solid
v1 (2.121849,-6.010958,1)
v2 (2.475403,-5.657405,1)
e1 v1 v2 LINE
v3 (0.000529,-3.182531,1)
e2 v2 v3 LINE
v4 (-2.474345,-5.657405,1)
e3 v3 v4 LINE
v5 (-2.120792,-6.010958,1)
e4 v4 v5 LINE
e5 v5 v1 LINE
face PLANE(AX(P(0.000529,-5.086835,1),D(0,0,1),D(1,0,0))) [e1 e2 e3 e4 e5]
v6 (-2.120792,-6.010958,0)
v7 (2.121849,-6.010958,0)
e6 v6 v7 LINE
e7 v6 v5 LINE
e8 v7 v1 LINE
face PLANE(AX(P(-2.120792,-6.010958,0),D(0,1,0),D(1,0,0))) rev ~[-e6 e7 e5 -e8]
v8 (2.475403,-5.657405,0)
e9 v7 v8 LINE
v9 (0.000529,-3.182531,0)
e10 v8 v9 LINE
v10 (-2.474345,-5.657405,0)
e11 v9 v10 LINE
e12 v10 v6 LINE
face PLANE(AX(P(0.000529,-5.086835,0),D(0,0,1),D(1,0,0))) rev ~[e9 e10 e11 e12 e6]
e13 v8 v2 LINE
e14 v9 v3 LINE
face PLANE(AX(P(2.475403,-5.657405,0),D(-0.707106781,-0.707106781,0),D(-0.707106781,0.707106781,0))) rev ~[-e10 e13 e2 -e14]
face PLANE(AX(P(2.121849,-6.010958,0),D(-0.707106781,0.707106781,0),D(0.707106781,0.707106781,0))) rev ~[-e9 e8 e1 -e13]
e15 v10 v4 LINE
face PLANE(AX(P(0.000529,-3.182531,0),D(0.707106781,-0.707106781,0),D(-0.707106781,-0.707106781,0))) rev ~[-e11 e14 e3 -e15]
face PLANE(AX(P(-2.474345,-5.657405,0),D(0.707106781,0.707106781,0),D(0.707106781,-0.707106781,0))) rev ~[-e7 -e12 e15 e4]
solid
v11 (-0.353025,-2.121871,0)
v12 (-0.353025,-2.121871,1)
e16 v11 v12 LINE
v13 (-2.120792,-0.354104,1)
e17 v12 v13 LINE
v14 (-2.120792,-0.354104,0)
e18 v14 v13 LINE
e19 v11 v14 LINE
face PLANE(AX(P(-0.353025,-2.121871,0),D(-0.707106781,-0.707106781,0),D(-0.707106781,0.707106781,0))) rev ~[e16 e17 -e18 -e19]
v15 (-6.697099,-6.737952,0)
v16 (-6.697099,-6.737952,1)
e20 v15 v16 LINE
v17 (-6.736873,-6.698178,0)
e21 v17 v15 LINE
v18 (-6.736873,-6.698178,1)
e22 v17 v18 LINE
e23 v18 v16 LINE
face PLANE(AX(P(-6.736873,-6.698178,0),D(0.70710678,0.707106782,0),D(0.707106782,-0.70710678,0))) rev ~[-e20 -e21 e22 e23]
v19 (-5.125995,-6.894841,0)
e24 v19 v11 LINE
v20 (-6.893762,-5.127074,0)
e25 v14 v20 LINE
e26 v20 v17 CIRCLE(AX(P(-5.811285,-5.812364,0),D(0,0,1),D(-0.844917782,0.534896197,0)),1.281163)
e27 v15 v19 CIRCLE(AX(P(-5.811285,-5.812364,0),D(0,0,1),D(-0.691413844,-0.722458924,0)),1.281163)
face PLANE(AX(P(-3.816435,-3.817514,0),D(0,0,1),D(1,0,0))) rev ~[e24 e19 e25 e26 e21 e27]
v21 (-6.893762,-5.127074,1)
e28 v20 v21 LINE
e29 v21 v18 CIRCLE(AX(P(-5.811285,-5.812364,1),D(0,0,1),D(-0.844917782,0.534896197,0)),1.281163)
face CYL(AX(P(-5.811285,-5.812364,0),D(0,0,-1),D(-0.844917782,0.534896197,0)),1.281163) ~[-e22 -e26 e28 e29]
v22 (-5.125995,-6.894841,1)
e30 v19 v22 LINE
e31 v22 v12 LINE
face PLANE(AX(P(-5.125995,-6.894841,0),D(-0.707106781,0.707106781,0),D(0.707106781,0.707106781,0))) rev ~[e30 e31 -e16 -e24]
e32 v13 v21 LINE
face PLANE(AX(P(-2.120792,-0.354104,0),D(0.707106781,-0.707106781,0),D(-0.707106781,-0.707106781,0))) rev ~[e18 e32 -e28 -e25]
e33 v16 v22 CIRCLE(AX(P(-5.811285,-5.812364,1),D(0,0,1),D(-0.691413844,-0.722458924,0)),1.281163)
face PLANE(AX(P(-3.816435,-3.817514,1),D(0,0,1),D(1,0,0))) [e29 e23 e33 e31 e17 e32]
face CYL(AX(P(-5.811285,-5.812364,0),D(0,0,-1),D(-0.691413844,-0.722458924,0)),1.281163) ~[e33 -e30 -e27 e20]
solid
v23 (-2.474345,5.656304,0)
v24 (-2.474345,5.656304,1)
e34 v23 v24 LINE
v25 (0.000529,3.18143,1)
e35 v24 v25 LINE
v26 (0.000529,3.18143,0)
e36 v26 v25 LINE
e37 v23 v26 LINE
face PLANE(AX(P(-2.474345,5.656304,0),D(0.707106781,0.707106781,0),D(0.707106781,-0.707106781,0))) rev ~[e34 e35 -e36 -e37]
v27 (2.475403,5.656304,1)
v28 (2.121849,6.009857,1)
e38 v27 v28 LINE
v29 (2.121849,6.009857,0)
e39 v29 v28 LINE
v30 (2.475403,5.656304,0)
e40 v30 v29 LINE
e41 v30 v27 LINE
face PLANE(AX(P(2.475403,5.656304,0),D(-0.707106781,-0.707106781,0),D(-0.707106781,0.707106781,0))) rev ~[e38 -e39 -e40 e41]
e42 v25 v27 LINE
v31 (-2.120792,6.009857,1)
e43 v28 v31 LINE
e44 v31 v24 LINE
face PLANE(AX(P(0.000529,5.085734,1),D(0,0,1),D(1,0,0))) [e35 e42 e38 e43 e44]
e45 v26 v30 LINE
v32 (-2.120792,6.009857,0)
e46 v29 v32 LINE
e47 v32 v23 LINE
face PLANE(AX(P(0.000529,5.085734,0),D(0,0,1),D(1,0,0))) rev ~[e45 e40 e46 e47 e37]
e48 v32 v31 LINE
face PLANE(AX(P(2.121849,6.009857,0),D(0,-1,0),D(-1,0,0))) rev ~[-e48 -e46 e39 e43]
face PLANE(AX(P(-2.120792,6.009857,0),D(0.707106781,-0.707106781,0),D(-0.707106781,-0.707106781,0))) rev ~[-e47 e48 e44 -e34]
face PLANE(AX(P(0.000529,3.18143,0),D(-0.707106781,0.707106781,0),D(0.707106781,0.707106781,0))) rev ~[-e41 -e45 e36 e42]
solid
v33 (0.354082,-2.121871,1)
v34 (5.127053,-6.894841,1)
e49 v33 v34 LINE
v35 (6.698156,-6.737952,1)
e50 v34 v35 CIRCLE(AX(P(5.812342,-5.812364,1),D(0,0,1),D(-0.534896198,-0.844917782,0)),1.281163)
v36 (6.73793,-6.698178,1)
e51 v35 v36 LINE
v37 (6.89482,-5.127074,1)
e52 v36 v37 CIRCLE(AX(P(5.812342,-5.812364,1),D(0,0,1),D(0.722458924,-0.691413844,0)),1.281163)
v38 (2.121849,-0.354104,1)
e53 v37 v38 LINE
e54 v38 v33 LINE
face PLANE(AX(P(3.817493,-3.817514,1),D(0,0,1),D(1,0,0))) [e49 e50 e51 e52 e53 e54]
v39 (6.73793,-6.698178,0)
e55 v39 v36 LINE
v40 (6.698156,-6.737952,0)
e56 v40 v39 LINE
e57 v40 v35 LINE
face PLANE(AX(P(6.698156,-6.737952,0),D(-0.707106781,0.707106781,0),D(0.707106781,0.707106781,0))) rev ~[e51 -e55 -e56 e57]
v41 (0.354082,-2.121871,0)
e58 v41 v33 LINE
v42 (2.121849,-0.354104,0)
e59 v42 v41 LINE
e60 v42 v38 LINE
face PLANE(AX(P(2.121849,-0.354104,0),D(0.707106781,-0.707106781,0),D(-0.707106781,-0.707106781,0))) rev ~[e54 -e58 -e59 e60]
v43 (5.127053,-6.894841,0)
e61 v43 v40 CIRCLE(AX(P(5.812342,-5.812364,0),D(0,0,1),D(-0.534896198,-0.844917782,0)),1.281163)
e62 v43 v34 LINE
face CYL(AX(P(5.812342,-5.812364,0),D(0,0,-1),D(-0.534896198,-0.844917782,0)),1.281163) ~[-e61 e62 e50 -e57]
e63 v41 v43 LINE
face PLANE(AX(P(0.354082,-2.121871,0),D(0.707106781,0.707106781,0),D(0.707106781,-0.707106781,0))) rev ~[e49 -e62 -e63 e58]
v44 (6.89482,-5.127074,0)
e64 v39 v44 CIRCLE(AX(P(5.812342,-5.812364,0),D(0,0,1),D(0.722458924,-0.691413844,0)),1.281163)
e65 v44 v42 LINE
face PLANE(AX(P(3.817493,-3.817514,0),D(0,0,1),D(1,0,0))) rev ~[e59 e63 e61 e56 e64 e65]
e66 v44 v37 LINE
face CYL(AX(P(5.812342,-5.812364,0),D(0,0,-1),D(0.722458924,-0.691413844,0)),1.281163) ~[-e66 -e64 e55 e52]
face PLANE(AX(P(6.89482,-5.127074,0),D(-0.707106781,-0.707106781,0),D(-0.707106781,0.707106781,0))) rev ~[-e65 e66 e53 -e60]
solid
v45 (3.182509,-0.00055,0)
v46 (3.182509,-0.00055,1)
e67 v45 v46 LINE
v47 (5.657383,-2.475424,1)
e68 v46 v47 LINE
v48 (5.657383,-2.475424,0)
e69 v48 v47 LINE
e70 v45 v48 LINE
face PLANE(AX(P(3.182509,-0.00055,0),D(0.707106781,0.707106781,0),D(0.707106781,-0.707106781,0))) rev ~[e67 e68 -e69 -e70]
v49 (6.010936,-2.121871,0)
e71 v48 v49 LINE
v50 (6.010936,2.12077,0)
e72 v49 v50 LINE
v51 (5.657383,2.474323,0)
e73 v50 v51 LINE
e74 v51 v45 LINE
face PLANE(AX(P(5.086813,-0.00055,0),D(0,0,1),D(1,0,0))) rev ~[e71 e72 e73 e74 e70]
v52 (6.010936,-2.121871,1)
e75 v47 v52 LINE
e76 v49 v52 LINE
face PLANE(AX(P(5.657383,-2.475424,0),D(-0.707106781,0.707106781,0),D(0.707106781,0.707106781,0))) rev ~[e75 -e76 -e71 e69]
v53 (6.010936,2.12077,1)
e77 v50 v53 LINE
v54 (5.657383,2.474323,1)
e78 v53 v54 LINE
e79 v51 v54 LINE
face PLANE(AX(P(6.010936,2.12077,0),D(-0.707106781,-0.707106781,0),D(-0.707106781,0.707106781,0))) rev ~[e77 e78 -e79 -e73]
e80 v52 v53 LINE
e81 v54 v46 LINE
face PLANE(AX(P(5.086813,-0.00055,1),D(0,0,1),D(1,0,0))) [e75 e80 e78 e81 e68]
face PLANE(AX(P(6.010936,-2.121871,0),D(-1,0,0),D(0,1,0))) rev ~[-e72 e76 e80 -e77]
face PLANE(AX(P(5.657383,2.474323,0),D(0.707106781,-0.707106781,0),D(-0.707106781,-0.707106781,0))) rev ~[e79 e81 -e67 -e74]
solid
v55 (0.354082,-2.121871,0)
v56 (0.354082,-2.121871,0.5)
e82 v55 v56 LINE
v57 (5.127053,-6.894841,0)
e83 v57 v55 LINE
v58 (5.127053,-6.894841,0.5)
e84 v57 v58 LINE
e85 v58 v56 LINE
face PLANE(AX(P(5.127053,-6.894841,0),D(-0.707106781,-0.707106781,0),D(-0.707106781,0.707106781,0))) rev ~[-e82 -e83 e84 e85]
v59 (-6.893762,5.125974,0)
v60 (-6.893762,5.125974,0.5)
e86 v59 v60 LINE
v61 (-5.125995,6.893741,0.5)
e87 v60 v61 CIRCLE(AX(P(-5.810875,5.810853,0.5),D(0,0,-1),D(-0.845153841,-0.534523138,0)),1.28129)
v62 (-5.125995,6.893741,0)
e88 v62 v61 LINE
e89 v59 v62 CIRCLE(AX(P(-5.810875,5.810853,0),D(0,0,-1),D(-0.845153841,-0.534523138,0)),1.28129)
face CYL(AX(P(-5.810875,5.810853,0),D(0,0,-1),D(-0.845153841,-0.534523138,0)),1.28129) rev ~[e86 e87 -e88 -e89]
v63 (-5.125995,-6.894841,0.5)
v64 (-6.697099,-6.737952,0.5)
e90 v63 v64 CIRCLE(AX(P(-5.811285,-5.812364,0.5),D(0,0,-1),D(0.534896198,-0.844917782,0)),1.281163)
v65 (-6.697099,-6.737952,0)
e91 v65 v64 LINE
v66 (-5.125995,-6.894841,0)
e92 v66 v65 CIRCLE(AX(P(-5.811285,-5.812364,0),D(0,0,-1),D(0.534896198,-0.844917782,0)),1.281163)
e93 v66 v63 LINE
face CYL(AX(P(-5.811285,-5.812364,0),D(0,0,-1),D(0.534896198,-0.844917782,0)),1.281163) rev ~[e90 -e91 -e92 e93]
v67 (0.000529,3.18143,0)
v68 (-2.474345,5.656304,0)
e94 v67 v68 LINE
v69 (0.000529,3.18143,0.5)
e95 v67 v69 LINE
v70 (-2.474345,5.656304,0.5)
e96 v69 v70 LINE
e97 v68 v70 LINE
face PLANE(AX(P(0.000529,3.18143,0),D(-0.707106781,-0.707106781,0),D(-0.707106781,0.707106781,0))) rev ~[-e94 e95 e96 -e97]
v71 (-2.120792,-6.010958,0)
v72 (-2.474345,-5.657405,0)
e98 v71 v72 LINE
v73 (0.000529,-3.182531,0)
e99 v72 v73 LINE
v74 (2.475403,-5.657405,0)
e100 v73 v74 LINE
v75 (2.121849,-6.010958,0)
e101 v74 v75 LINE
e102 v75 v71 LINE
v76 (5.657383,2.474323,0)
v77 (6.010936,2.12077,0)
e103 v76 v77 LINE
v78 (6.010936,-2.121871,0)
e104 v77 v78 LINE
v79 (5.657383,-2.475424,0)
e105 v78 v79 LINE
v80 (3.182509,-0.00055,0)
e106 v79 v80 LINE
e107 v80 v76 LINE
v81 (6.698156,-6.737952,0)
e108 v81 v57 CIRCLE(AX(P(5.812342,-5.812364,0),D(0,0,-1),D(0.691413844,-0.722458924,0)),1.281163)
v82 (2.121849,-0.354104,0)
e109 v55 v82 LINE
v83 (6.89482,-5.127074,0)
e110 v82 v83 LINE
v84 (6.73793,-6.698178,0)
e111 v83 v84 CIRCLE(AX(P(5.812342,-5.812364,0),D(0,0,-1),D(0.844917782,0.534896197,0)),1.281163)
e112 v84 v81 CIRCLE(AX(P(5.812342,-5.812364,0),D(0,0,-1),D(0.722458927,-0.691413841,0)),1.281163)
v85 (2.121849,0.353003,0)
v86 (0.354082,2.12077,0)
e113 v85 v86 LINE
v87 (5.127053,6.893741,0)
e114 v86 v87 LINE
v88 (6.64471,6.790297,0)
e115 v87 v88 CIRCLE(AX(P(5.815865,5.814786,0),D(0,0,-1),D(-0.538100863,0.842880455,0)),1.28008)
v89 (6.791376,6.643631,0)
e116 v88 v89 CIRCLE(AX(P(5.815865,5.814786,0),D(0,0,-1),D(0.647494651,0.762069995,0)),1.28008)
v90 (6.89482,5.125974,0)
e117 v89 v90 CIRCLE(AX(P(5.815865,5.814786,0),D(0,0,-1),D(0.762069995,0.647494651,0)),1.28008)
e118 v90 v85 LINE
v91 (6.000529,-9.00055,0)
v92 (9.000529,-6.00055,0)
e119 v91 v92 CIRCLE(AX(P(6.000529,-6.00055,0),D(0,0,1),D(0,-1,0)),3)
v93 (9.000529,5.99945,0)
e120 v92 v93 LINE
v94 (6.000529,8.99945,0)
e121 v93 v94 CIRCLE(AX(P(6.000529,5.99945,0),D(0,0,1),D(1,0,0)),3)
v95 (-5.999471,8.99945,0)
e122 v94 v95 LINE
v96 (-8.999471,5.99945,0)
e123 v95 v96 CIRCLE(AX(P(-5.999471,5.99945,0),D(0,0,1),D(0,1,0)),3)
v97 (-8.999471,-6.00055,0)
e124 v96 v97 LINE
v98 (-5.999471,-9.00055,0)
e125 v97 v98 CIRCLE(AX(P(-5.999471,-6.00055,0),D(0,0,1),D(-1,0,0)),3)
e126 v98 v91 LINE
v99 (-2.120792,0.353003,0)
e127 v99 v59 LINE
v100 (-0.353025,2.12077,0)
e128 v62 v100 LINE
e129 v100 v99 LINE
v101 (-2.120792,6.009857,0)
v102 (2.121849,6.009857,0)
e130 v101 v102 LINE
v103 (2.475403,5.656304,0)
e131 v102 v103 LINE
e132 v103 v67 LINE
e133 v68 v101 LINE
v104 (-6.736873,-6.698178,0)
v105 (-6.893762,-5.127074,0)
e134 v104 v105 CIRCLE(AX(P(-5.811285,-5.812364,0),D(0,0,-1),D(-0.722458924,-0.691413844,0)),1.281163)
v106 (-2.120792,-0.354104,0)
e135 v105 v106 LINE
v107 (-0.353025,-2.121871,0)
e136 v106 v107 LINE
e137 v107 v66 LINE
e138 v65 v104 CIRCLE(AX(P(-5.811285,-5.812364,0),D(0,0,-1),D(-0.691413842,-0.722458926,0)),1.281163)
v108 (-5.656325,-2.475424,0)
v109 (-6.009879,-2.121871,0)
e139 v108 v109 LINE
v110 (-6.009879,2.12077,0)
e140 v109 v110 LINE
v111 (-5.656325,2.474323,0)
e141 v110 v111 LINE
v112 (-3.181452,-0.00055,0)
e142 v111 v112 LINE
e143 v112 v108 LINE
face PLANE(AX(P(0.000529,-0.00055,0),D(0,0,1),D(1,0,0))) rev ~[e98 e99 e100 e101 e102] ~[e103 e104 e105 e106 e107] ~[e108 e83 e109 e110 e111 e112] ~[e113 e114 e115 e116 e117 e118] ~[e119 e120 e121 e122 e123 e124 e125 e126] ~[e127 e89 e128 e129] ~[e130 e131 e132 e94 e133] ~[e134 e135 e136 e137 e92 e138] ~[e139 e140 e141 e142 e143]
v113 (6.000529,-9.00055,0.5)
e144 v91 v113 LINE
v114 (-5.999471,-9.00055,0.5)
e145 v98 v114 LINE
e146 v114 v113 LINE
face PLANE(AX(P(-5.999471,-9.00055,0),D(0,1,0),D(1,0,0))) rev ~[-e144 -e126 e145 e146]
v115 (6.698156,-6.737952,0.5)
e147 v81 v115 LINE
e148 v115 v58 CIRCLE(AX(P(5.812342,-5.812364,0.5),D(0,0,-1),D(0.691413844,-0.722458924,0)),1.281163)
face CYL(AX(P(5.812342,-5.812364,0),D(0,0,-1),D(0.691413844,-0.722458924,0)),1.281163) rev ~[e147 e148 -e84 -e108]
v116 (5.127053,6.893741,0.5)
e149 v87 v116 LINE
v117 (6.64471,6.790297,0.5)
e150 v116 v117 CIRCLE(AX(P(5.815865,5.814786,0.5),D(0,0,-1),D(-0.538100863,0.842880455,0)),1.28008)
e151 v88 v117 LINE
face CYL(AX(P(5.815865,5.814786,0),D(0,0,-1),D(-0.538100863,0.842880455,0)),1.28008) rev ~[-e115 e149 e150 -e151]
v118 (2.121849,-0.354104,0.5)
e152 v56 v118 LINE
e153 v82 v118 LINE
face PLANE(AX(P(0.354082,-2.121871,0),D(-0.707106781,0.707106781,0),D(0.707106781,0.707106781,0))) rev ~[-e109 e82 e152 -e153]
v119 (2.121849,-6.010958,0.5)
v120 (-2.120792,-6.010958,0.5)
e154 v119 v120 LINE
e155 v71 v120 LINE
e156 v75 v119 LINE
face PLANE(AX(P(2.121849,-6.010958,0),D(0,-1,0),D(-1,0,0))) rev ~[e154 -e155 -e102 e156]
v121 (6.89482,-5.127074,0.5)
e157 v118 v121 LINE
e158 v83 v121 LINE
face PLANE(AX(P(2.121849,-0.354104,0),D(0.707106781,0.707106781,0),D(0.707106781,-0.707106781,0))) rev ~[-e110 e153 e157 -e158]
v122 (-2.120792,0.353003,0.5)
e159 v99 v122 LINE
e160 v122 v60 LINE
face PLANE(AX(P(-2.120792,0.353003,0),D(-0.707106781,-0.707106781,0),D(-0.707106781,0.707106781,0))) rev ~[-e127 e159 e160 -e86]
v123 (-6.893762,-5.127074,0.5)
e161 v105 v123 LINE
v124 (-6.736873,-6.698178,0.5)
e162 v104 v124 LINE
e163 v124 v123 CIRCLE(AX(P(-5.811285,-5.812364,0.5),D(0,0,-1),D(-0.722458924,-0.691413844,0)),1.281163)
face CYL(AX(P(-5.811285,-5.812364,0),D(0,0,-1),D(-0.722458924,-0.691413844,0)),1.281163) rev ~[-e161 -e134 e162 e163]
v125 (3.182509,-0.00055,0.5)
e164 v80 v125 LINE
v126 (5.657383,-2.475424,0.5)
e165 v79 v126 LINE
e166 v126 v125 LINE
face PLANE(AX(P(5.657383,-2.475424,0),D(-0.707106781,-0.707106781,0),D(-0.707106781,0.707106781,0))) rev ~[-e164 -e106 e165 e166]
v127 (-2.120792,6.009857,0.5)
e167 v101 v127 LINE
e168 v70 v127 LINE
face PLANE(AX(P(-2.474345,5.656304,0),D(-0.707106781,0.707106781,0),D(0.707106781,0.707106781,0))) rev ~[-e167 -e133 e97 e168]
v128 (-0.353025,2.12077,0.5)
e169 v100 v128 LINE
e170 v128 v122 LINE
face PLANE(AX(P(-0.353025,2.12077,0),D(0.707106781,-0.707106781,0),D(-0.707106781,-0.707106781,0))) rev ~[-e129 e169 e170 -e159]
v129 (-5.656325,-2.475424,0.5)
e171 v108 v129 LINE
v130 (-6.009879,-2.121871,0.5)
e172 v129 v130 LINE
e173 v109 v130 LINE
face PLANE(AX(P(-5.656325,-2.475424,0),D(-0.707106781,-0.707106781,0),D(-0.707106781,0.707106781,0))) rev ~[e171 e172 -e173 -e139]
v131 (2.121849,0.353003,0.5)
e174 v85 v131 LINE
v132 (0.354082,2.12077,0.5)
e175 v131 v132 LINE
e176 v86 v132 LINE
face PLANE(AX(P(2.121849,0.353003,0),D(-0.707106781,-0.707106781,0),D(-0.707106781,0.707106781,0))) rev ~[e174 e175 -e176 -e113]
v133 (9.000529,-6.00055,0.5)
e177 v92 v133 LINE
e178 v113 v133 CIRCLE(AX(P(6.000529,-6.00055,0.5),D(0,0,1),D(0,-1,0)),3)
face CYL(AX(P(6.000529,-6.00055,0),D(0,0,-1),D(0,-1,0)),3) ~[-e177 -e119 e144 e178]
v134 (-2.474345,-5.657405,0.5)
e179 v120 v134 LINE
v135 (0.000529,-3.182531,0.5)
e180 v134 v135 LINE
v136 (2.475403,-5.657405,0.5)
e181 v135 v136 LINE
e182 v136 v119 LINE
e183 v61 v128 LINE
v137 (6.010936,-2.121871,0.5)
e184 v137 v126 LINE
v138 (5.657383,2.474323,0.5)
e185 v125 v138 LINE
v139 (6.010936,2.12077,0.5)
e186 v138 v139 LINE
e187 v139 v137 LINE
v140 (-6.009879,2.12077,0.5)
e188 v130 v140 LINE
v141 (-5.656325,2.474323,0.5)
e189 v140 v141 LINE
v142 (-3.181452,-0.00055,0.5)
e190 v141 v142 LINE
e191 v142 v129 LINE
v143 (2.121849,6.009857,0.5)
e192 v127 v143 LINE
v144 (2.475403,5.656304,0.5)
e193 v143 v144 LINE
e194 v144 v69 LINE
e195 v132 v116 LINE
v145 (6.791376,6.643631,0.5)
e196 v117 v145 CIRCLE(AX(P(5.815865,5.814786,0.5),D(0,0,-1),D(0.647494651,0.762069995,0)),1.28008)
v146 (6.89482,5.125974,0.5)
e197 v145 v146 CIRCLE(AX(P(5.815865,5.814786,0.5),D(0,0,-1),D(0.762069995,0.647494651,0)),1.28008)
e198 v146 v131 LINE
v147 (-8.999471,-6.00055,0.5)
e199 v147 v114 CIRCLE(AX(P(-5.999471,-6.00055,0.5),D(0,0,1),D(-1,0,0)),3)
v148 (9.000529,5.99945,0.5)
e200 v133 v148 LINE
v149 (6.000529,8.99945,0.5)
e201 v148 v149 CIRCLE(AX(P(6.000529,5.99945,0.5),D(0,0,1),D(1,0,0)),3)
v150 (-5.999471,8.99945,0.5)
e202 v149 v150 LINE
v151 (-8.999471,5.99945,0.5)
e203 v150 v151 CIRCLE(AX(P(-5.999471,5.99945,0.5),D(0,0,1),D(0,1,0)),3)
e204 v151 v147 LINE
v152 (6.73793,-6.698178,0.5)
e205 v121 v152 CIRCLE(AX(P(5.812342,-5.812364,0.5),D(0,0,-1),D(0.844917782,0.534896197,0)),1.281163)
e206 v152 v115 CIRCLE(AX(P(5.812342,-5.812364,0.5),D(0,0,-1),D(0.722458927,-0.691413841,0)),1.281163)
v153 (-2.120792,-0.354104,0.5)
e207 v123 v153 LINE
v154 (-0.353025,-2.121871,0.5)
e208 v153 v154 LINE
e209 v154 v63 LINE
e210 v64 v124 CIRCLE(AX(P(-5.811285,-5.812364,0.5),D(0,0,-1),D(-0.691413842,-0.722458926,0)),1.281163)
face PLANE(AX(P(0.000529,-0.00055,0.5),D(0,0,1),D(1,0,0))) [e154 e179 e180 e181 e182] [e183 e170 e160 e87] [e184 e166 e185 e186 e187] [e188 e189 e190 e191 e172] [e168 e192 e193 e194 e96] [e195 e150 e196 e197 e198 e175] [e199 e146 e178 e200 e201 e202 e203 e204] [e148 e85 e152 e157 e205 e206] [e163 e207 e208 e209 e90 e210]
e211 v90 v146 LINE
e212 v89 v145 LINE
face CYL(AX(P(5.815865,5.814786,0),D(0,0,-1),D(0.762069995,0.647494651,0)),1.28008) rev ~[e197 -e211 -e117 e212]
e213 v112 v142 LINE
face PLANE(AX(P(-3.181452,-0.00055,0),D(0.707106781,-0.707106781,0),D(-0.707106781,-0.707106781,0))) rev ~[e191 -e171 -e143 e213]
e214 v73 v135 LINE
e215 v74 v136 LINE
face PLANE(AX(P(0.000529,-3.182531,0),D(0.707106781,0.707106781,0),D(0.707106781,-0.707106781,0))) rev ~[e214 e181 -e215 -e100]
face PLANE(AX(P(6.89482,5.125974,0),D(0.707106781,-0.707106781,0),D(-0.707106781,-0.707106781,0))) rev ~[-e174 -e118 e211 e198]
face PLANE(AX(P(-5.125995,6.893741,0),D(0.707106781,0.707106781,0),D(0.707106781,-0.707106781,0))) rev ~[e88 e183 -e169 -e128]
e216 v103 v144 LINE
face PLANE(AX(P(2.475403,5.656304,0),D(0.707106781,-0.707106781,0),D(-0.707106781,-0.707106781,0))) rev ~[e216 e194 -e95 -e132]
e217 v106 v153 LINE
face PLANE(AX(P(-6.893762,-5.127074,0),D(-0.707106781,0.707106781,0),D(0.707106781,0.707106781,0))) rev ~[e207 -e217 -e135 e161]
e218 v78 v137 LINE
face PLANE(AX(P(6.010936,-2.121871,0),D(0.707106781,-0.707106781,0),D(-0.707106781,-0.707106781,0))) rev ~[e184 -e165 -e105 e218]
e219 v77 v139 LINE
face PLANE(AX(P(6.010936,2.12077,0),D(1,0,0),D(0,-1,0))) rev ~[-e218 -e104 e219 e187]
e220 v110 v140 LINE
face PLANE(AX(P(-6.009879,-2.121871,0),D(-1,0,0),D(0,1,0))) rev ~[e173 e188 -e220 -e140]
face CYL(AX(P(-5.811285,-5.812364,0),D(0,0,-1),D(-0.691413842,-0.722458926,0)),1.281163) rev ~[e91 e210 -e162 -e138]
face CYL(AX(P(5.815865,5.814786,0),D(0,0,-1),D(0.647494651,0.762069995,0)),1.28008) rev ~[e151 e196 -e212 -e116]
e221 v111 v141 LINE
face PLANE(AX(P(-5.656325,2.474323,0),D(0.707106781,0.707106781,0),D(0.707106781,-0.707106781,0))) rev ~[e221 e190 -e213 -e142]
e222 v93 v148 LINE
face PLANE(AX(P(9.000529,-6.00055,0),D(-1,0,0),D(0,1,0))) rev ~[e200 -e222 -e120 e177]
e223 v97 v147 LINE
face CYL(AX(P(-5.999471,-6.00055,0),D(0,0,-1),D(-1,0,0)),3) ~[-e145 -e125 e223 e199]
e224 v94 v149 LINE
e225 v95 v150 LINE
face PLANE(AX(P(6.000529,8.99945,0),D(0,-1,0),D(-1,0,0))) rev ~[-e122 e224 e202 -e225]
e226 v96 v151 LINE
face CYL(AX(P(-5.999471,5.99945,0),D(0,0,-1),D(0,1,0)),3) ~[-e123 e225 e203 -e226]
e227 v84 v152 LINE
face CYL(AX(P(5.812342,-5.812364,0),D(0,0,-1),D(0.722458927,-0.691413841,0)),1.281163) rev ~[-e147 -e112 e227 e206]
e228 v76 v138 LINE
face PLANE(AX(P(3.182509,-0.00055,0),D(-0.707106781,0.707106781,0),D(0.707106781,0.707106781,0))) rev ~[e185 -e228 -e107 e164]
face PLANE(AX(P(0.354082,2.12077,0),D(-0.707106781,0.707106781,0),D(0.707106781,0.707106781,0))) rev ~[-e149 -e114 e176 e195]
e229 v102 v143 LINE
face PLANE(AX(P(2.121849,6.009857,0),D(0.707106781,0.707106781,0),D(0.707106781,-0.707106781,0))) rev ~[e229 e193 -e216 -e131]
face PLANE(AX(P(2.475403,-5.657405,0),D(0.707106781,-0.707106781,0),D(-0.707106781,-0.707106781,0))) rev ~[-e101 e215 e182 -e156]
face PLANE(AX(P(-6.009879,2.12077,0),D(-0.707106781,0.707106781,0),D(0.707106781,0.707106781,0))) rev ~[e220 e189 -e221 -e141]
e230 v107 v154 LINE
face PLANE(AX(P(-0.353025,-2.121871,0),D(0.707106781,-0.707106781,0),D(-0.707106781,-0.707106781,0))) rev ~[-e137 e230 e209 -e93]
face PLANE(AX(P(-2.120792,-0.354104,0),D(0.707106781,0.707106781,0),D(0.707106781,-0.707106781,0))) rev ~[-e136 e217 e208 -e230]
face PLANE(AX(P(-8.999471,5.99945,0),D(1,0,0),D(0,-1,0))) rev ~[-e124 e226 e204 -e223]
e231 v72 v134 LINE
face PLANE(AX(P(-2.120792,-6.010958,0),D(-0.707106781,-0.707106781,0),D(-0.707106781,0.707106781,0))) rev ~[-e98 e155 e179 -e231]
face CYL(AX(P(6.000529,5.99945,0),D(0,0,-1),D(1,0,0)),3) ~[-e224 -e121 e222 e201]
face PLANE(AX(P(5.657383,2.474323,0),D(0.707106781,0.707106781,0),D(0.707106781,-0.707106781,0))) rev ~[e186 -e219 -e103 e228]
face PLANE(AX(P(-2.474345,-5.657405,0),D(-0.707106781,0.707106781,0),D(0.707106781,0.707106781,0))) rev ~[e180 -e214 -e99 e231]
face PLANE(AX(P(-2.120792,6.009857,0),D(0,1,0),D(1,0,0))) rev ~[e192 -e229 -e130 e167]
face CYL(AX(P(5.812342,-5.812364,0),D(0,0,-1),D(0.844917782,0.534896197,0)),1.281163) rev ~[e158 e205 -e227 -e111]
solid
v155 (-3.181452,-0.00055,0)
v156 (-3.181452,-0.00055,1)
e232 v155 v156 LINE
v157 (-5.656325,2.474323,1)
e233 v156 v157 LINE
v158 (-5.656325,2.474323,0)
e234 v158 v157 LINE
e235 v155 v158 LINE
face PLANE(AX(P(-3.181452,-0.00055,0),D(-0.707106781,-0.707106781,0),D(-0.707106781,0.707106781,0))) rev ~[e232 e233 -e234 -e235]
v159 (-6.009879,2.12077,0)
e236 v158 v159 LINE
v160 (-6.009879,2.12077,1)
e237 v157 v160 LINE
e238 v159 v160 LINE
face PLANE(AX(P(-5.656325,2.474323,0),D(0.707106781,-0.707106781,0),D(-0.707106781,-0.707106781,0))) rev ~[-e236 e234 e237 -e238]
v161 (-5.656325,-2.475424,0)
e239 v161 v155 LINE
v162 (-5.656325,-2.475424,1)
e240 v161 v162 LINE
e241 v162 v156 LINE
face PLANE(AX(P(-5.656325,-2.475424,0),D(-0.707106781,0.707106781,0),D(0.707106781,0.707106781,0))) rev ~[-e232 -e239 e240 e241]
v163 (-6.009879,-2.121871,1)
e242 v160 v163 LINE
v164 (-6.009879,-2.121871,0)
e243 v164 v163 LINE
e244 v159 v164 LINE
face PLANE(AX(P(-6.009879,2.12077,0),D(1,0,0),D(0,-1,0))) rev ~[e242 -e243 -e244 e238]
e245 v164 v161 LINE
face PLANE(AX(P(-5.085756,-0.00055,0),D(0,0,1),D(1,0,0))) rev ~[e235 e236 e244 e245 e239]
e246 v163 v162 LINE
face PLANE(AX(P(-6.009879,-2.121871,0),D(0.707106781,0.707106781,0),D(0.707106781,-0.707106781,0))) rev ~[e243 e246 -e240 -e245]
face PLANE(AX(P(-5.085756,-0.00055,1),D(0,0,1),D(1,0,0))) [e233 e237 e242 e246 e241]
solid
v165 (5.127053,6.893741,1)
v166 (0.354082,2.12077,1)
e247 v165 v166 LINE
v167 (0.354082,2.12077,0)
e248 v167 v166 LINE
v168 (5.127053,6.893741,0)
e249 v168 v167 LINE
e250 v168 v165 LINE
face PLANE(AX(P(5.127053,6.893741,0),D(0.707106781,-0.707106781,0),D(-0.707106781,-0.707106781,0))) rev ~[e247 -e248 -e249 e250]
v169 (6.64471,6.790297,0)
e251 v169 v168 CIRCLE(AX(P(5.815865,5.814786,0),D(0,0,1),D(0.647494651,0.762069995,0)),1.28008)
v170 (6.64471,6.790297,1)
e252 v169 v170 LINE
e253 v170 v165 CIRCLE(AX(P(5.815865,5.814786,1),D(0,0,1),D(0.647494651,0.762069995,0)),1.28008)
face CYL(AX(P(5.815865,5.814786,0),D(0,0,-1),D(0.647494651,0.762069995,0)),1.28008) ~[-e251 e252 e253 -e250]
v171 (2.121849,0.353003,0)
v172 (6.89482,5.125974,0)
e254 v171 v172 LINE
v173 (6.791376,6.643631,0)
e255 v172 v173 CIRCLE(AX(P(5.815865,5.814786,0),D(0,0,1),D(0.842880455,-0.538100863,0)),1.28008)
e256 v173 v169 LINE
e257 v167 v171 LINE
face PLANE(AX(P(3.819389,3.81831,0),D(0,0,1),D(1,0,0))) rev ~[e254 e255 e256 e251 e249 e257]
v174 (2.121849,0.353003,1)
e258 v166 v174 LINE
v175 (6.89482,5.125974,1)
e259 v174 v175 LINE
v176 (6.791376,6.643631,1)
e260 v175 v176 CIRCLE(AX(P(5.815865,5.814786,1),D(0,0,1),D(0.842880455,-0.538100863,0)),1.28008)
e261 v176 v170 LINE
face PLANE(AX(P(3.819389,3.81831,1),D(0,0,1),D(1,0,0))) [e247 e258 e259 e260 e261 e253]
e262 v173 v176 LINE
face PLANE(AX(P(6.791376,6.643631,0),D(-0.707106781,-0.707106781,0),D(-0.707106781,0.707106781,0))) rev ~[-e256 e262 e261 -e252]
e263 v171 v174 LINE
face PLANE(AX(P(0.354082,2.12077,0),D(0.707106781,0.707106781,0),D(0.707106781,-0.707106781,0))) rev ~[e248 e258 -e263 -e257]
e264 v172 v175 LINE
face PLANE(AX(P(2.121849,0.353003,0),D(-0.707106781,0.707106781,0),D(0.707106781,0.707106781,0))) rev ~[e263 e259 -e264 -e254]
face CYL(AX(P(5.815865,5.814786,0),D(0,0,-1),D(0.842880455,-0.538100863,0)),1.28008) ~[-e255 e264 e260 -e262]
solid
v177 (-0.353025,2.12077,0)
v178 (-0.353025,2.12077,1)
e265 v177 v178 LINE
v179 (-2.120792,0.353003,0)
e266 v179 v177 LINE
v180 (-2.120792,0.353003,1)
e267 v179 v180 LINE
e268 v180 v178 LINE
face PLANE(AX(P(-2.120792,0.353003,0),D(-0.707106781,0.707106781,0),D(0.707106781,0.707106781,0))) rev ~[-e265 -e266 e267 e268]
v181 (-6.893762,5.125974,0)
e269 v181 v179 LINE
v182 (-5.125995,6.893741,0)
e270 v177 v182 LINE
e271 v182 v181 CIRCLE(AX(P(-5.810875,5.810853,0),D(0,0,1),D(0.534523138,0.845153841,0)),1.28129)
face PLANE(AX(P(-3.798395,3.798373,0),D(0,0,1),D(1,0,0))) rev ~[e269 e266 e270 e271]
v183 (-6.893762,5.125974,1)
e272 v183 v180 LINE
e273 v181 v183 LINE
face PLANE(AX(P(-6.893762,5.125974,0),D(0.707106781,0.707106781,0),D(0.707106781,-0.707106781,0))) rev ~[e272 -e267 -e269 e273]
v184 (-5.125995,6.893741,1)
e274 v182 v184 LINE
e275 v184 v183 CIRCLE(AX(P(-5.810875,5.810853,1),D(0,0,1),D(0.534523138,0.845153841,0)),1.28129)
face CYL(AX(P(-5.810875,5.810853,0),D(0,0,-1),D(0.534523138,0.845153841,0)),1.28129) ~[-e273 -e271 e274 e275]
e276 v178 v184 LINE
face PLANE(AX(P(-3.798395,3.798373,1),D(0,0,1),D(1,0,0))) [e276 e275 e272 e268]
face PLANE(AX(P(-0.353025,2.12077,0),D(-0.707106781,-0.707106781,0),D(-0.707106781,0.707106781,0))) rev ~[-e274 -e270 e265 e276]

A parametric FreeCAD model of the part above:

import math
import FreeCAD as App
import Part
import Sketcher

V = App.Vector
Q = App.Units.Quantity


def add_polygon(sketch, points):
    """Adds a closed chain of lines whose ends are joined by coincident constraints."""
    first, n = sketch.GeometryCount, len(points)
    for a, b in zip(points, points[1:] + points[:1]):
        sketch.addGeometry(Part.LineSegment(App.Vector(*a, 0), App.Vector(*b, 0)), False)
    for i in range(n):
        sketch.addConstraint(Sketcher.Constraint("Coincident", first + i, 2, first + (i + 1) % n, 1))

doc = App.newDocument("Part")
body = doc.addObject("PartDesign::Body", "Body")

sketch1 = body.newObject("Sketcher::SketchObject", "Sketch")
sketch1.AttachmentSupport = (doc.getObject("XY_Plane"), [""])
sketch1.MapMode = "FlatFace"
sketch1.addGeometry([
    Part.ArcOfCircle(Part.Circle(V(-5.8, 5.8, 0), V(0, 0, 1), 1.3), math.radians(58), math.radians(212)),
    Part.LineSegment(V(-6.9, 5.1, 0), V(-2.1, 0.4, 0)),
    Part.LineSegment(V(-2.1, 0.4, 0), V(-0.4, 2.1, 0)),
    Part.LineSegment(V(-0.4, 2.1, 0), V(-5.1, 6.9, 0)),
], False)
sketch1.addConstraint([
    Sketcher.Constraint("Coincident", 0, 2, 1, 1),
    Sketcher.Constraint("Coincident", 1, 2, 2, 1),
    Sketcher.Constraint("Coincident", 2, 2, 3, 1),
    Sketcher.Constraint("Coincident", 3, 2, 0, 1),
    Sketcher.Constraint("Perpendicular", 1, 2),
    Sketcher.Constraint("Perpendicular", 2, 3),
    Sketcher.Constraint("Equal", 1, 3),
    Sketcher.Constraint("Angle", 1, Q("-45 deg")),
    Sketcher.Constraint("Distance", 2, 2.5),
    Sketcher.Constraint("Distance", 1, 6.75),
    Sketcher.Constraint("Radius", 0, 1.28129),
    Sketcher.Constraint("DistanceX", 1, 2, -1, 1, 2.120792),
    Sketcher.Constraint("DistanceY", -1, 1, 2, 2, 2.12077),
])
pad1 = body.newObject("PartDesign::Pad", "Pad")
pad1.Profile = sketch1
pad1.Length = 1
body2 = doc.addObject("PartDesign::Body", "Body001")

sketch2 = body2.newObject("Sketcher::SketchObject", "Sketch001")
sketch2.AttachmentSupport = (doc.getObject("XY_Plane001"), [""])
sketch2.MapMode = "FlatFace"
add_polygon(sketch2, [(-5.66, -2.48), (-3.18, 0), (-5.66, 2.47), (-6.01, 2.12), (-6.01, -2.12)])
sketch2.addConstraint([
    Sketcher.Constraint("Vertical", 3),
    Sketcher.Constraint("Perpendicular", 0, 1),
    Sketcher.Constraint("Perpendicular", 1, 2),
    Sketcher.Constraint("Perpendicular", 2, 4),
    Sketcher.Constraint("Vertical", 1, 2, 4, 2),
    Sketcher.Constraint("Equal", 0, 1),
    Sketcher.Constraint("Distance", 0, 3.5),
    Sketcher.Constraint("Distance", 2, 0.5),
    Sketcher.Constraint("DistanceX", 0, 2, -1, 1, 3.181452),
    Sketcher.Constraint("DistanceY", 0, 2, -1, 1, 0.00055),
])
pad2 = body2.newObject("PartDesign::Pad", "Pad001")
pad2.Profile = sketch2
pad2.Length = 1
body3 = doc.addObject("PartDesign::Body", "Body002")

sketch3 = body3.newObject("Sketcher::SketchObject", "Sketch002")
sketch3.AttachmentSupport = (doc.getObject("XY_Plane002"), [""])
sketch3.MapMode = "FlatFace"
add_polygon(sketch3, [(-2.47, 5.66), (0, 3.18), (2.48, 5.66), (2.12, 6.01), (-2.12, 6.01)])
sketch3.addConstraint([
    Sketcher.Constraint("Horizontal", 3),
    Sketcher.Constraint("Perpendicular", 0, 1),
    Sketcher.Constraint("Perpendicular", 1, 2),
    Sketcher.Constraint("Perpendicular", 2, 4),
    Sketcher.Constraint("Horizontal", 1, 2, 4, 2),
    Sketcher.Constraint("Equal", 0, 1),
    Sketcher.Constraint("Distance", 0, 3.5),
    Sketcher.Constraint("Distance", 2, 0.5),
    Sketcher.Constraint("DistanceX", -1, 1, 0, 2, 0.000529),
    Sketcher.Constraint("DistanceY", -1, 1, 0, 2, 3.18143),
])
pad3 = body3.newObject("PartDesign::Pad", "Pad002")
pad3.Profile = sketch3
pad3.Length = 1
body4 = doc.addObject("PartDesign::Body", "Body003")

sketch4 = body4.newObject("Sketcher::SketchObject", "Sketch003")
sketch4.AttachmentSupport = (doc.getObject("XY_Plane003"), [""])
sketch4.MapMode = "FlatFace"
sketch4.addGeometry([
    Part.ArcOfCircle(Part.Circle(V(5.82, 5.81, 0), V(0, 0, 1), 1.28), math.radians(50), math.radians(123)),
    Part.LineSegment(V(5.13, 6.89, 0), V(0.35, 2.12, 0)),
    Part.LineSegment(V(0.35, 2.12, 0), V(2.12, 0.35, 0)),
    Part.LineSegment(V(2.12, 0.35, 0), V(6.89, 5.13, 0)),
    Part.ArcOfCircle(Part.Circle(V(5.82, 5.81, 0), V(0, 0, 1), 1.28), math.radians(-33), math.radians(40)),
    Part.LineSegment(V(6.79, 6.64, 0), V(6.64, 6.79, 0)),
], False)
sketch4.addConstraint([
    Sketcher.Constraint("Coincident", 0, 2, 1, 1),
    Sketcher.Constraint("Coincident", 1, 2, 2, 1),
    Sketcher.Constraint("Coincident", 2, 2, 3, 1),
    Sketcher.Constraint("Coincident", 3, 2, 4, 1),
    Sketcher.Constraint("Coincident", 4, 2, 5, 1),
    Sketcher.Constraint("Coincident", 5, 2, 0, 1),
    Sketcher.Constraint("Coincident", 4, 3, 0, 3),
    Sketcher.Constraint("Equal", 0, 4),
    Sketcher.Constraint("Perpendicular", 1, 2),
    Sketcher.Constraint("Perpendicular", 2, 3),
    Sketcher.Constraint("Perpendicular", 3, 5),
    Sketcher.Constraint("Equal", 1, 3),
    Sketcher.Constraint("Angle", 1, Q("-135 deg")),
    Sketcher.Constraint("Distance", 2, 2.5),
    Sketcher.Constraint("Distance", 1, 6.75),
    Sketcher.Constraint("Radius", 0, 1.28008),
    Sketcher.Constraint("DistanceY", -1, 1, 0, 2, 6.893741),
    Sketcher.Constraint("DistanceX", -1, 1, 2, 2, 2.121849),
    Sketcher.Constraint("DistanceY", -1, 1, 4, 2, 6.643631),
])
pad4 = body4.newObject("PartDesign::Pad", "Pad003")
pad4.Profile = sketch4
pad4.Length = 1
body5 = doc.addObject("PartDesign::Body", "Body004")

sketch5 = body5.newObject("Sketcher::SketchObject", "Sketch004")
sketch5.AttachmentSupport = (doc.getObject("XY_Plane004"), [""])
sketch5.MapMode = "FlatFace"
add_polygon(sketch5, [(5.66, 2.47), (3.18, 0), (5.66, -2.48), (6.01, -2.12), (6.01, 2.12)])
sketch5.addConstraint([
    Sketcher.Constraint("Vertical", 3),
    Sketcher.Constraint("Perpendicular", 0, 1),
    Sketcher.Constraint("Perpendicular", 1, 2),
    Sketcher.Constraint("Perpendicular", 2, 4),
    Sketcher.Constraint("Vertical", 1, 2, 4, 2),
    Sketcher.Constraint("Equal", 0, 1),
    Sketcher.Constraint("Distance", 0, 3.5),
    Sketcher.Constraint("Distance", 2, 0.5),
    Sketcher.Constraint("DistanceX", -1, 1, 0, 2, 3.182509),
    Sketcher.Constraint("DistanceY", 0, 2, -1, 1, 0.00055),
])
pad5 = body5.newObject("PartDesign::Pad", "Pad004")
pad5.Profile = sketch5
pad5.Length = 1
body6 = doc.addObject("PartDesign::Body", "Body005")

sketch6 = body6.newObject("Sketcher::SketchObject", "Sketch005")
sketch6.AttachmentSupport = (doc.getObject("XY_Plane005"), [""])
sketch6.MapMode = "FlatFace"
sketch6.addGeometry([
    Part.ArcOfCircle(Part.Circle(V(5.81, -5.81, 0), V(0, 0, 1), 1.28), math.radians(-122), math.radians(-46)),
    Part.LineSegment(V(6.7, -6.74, 0), V(6.74, -6.7, 0)),
    Part.ArcOfCircle(Part.Circle(V(5.81, -5.81, 0), V(0, 0, 1), 1.28), math.radians(-44), math.radians(32)),
    Part.LineSegment(V(6.89, -5.13, 0), V(2.12, -0.35, 0)),
    Part.LineSegment(V(2.12, -0.35, 0), V(0.35, -2.12, 0)),
    Part.LineSegment(V(0.35, -2.12, 0), V(5.13, -6.89, 0)),
], False)
sketch6.addConstraint([
    Sketcher.Constraint("Coincident", 0, 2, 1, 1),
    Sketcher.Constraint("Coincident", 1, 2, 2, 1),
    Sketcher.Constraint("Coincident", 2, 2, 3, 1),
    Sketcher.Constraint("Coincident", 3, 2, 4, 1),
    Sketcher.Constraint("Coincident", 4, 2, 5, 1),
    Sketcher.Constraint("Coincident", 5, 2, 0, 1),
    Sketcher.Constraint("Coincident", 2, 3, 0, 3),
    Sketcher.Constraint("Equal", 0, 2),
    Sketcher.Constraint("Perpendicular", 1, 3),
    Sketcher.Constraint("Perpendicular", 3, 4),
    Sketcher.Constraint("Perpendicular", 4, 5),
    Sketcher.Constraint("Equal", 3, 5),
    Sketcher.Constraint("Angle", 1, Q("45 deg")),
    Sketcher.Constraint("Distance", 4, 2.5),
    Sketcher.Constraint("Distance", 3, 6.75),
    Sketcher.Constraint("Radius", 0, 1.281163),
    Sketcher.Constraint("Distance", 1, 0.056249),
    Sketcher.Constraint("DistanceY", 0, 2, -1, 1, 6.737952),
    Sketcher.Constraint("DistanceX", -1, 1, 1, 2, 6.73793),
])
pad6 = body6.newObject("PartDesign::Pad", "Pad005")
pad6.Profile = sketch6
pad6.Length = 1
body7 = doc.addObject("PartDesign::Body", "Body006")

sketch7 = body7.newObject("Sketcher::SketchObject", "Sketch006")
sketch7.AttachmentSupport = (doc.getObject("XY_Plane006"), [""])
sketch7.MapMode = "FlatFace"
add_polygon(sketch7, [(2.48, -5.66), (0, -3.18), (-2.47, -5.66), (-2.12, -6.01), (2.12, -6.01)])
sketch7.addConstraint([
    Sketcher.Constraint("Horizontal", 3),
    Sketcher.Constraint("Perpendicular", 0, 1),
    Sketcher.Constraint("Perpendicular", 1, 2),
    Sketcher.Constraint("Perpendicular", 2, 4),
    Sketcher.Constraint("Horizontal", 1, 2, 4, 2),
    Sketcher.Constraint("Equal", 0, 1),
    Sketcher.Constraint("Distance", 0, 3.5),
    Sketcher.Constraint("Distance", 2, 0.5),
    Sketcher.Constraint("DistanceX", -1, 1, 0, 2, 0.000529),
    Sketcher.Constraint("DistanceY", 0, 2, -1, 1, 3.182531),
])
pad7 = body7.newObject("PartDesign::Pad", "Pad006")
pad7.Profile = sketch7
pad7.Length = 1
body8 = doc.addObject("PartDesign::Body", "Body007")

sketch8 = body8.newObject("Sketcher::SketchObject", "Sketch007")
sketch8.AttachmentSupport = (doc.getObject("XY_Plane007"), [""])
sketch8.MapMode = "FlatFace"
sketch8.addGeometry([
    Part.ArcOfCircle(Part.Circle(V(-5.81, -5.81, 0), V(0, 0, 1), 1.28), math.radians(148), math.radians(224)),
    Part.LineSegment(V(-6.74, -6.7, 0), V(-6.7, -6.74, 0)),
    Part.ArcOfCircle(Part.Circle(V(-5.81, -5.81, 0), V(0, 0, 1), 1.28), math.radians(-134), math.radians(-58)),
    Part.LineSegment(V(-5.13, -6.89, 0), V(-0.35, -2.12, 0)),
    Part.LineSegment(V(-0.35, -2.12, 0), V(-2.12, -0.35, 0)),
    Part.LineSegment(V(-2.12, -0.35, 0), V(-6.89, -5.13, 0)),
], False)
sketch8.addConstraint([
    Sketcher.Constraint("Coincident", 0, 2, 1, 1),
    Sketcher.Constraint("Coincident", 1, 2, 2, 1),
    Sketcher.Constraint("Coincident", 2, 2, 3, 1),
    Sketcher.Constraint("Coincident", 3, 2, 4, 1),
    Sketcher.Constraint("Coincident", 4, 2, 5, 1),
    Sketcher.Constraint("Coincident", 5, 2, 0, 1),
    Sketcher.Constraint("Coincident", 2, 3, 0, 3),
    Sketcher.Constraint("Equal", 0, 2),
    Sketcher.Constraint("Perpendicular", 1, 3),
    Sketcher.Constraint("Perpendicular", 3, 4),
    Sketcher.Constraint("Perpendicular", 4, 5),
    Sketcher.Constraint("Equal", 3, 5),
    Sketcher.Constraint("Angle", 1, Q("-44.999999 deg")),
    Sketcher.Constraint("Distance", 4, 2.5),
    Sketcher.Constraint("Distance", 3, 6.75),
    Sketcher.Constraint("Radius", 0, 1.281163),
    Sketcher.Constraint("DistanceX", 1, 2, -1, 1, 6.697099),
    Sketcher.Constraint("Distance", 1, 0.056249),
    Sketcher.Constraint("DistanceY", 1, 2, -1, 1, 6.737952),
])
pad8 = body8.newObject("PartDesign::Pad", "Pad007")
pad8.Profile = sketch8
pad8.Length = 1
body9 = doc.addObject("PartDesign::Body", "Body008")

sketch9 = body9.newObject("Sketcher::SketchObject", "Sketch008")
sketch9.AttachmentSupport = (doc.getObject("XY_Plane008"), [""])
sketch9.MapMode = "FlatFace"
sketch9.addGeometry(Part.LineSegment(V(-6, -9, 0), V(6, -9, 0)), False)
sketch9.addGeometry(Part.ArcOfCircle(Part.Circle(V(6, -6, 0), V(0, 0, 1), 3), math.radians(-90), math.radians(0)), False)
sketch9.addGeometry(Part.LineSegment(V(9, -6, 0), V(9, 6, 0)), False)
sketch9.addGeometry(Part.ArcOfCircle(Part.Circle(V(6, 6, 0), V(0, 0, 1), 3), math.radians(0), math.radians(90)), False)
sketch9.addGeometry(Part.LineSegment(V(6, 9, 0), V(-6, 9, 0)), False)
sketch9.addGeometry(Part.ArcOfCircle(Part.Circle(V(-6, 6, 0), V(0, 0, 1), 3), math.radians(90), math.radians(180)), False)
sketch9.addGeometry(Part.LineSegment(V(-9, 6, 0), V(-9, -6, 0)), False)
sketch9.addGeometry(Part.ArcOfCircle(Part.Circle(V(-6, -6, 0), V(0, 0, 1), 3), math.radians(180), math.radians(270)), False)
sketch9.addGeometry(Part.ArcOfCircle(Part.Circle(V(-5.81, -5.81, 0), V(0, 0, 1), 1.28), math.radians(-134), math.radians(-58)), False)
sketch9.addGeometry(Part.ArcOfCircle(Part.Circle(V(-5.81, -5.81, 0), V(0, 0, 1), 1.28), math.radians(-136.26), math.radians(-133.74)), False)
sketch9.addGeometry(Part.ArcOfCircle(Part.Circle(V(-5.81, -5.81, 0), V(0, 0, 1), 1.28), math.radians(148), math.radians(224)), False)
sketch9.addGeometry(Part.LineSegment(V(-6.89, -5.13, 0), V(-2.12, -0.35, 0)), False)
sketch9.addGeometry(Part.LineSegment(V(-2.12, -0.35, 0), V(-0.35, -2.12, 0)), False)
sketch9.addGeometry(Part.LineSegment(V(-0.35, -2.12, 0), V(-5.13, -6.89, 0)), False)
add_polygon(sketch9, [(-2.12, -6.01), (-2.47, -5.66), (0, -3.18), (2.48, -5.66), (2.12, -6.01)])
add_polygon(sketch9, [(-6.01, 2.12), (-5.66, 2.47), (-3.18, 0), (-5.66, -2.48), (-6.01, -2.12)])
sketch9.addGeometry(Part.ArcOfCircle(Part.Circle(V(5.81, -5.81, 0), V(0, 0, 1), 1.28), math.radians(-44), math.radians(32)), False)
sketch9.addGeometry(Part.ArcOfCircle(Part.Circle(V(5.81, -5.81, 0), V(0, 0, 1), 1.28), math.radians(-46.26), math.radians(-43.74)), False)
sketch9.addGeometry(Part.ArcOfCircle(Part.Circle(V(5.81, -5.81, 0), V(0, 0, 1), 1.28), math.radians(-122), math.radians(-46)), False)
sketch9.addGeometry(Part.LineSegment(V(5.13, -6.89, 0), V(0.35, -2.12, 0)), False)
sketch9.addGeometry(Part.LineSegment(V(0.35, -2.12, 0), V(2.12, -0.35, 0)), False)
sketch9.addGeometry(Part.LineSegment(V(2.12, -0.35, 0), V(6.89, -5.13, 0)), False)
add_polygon(sketch9, [(6.01, -2.12), (5.66, -2.48), (3.18, 0), (5.66, 2.47), (6.01, 2.12)])
sketch9.addGeometry(Part.LineSegment(V(-0.35, 2.12, 0), V(-2.12, 0.35, 0)), False)
sketch9.addGeometry(Part.LineSegment(V(-2.12, 0.35, 0), V(-6.89, 5.13, 0)), False)
sketch9.addGeometry(Part.ArcOfCircle(Part.Circle(V(-5.81, 5.81, 0), V(0, 0, 1), 1.28), math.radians(58), math.radians(212)), False)
sketch9.addGeometry(Part.LineSegment(V(-5.13, 6.89, 0), V(-0.35, 2.12, 0)), False)
add_polygon(sketch9, [(2.12, 6.01), (2.48, 5.66), (0, 3.18), (-2.47, 5.66), (-2.12, 6.01)])
sketch9.addGeometry(Part.LineSegment(V(2.12, 0.35, 0), V(0.35, 2.12, 0)), False)
sketch9.addGeometry(Part.LineSegment(V(0.35, 2.12, 0), V(5.13, 6.89, 0)), False)
sketch9.addGeometry(Part.ArcOfCircle(Part.Circle(V(5.82, 5.81, 0), V(0, 0, 1), 1.28), math.radians(50), math.radians(123)), False)
sketch9.addGeometry(Part.ArcOfCircle(Part.Circle(V(5.82, 5.81, 0), V(0, 0, 1), 1.28), math.radians(40.35), math.radians(49.65)), False)
sketch9.addGeometry(Part.ArcOfCircle(Part.Circle(V(5.82, 5.81, 0), V(0, 0, 1), 1.28), math.radians(-33), math.radians(40)), False)
sketch9.addGeometry(Part.LineSegment(V(6.89, 5.13, 0), V(2.12, 0.35, 0)), False)
sketch9.addConstraint([
    Sketcher.Constraint("Tangent", 0, 2, 1, 1),
    Sketcher.Constraint("Tangent", 1, 2, 2, 1),
    Sketcher.Constraint("Tangent", 2, 2, 3, 1),
    Sketcher.Constraint("Tangent", 3, 2, 4, 1),
    Sketcher.Constraint("Tangent", 4, 2, 5, 1),
    Sketcher.Constraint("Tangent", 5, 2, 6, 1),
    Sketcher.Constraint("Tangent", 6, 2, 7, 1),
    Sketcher.Constraint("Tangent", 7, 2, 0, 1),
    Sketcher.Constraint("Tangent", 8, 1, 9, 2),
    Sketcher.Constraint("Tangent", 9, 1, 10, 2),
    Sketcher.Constraint("Coincident", 10, 1, 11, 1),
    Sketcher.Constraint("Coincident", 11, 2, 12, 1),
    Sketcher.Constraint("Coincident", 12, 2, 13, 1),
    Sketcher.Constraint("Coincident", 13, 2, 8, 2),
    Sketcher.Constraint("Tangent", 24, 1, 25, 2),
    Sketcher.Constraint("Tangent", 25, 1, 26, 2),
    Sketcher.Constraint("Coincident", 26, 1, 27, 1),
    Sketcher.Constraint("Coincident", 27, 2, 28, 1),
    Sketcher.Constraint("Coincident", 28, 2, 29, 1),
    Sketcher.Constraint("Coincident", 29, 2, 24, 2),
    Sketcher.Constraint("Coincident", 35, 2, 36, 1),
    Sketcher.Constraint("Coincident", 36, 2, 37, 2),
    Sketcher.Constraint("Coincident", 37, 1, 38, 1),
    Sketcher.Constraint("Coincident", 38, 2, 35, 1),
    Sketcher.Constraint("Coincident", 44, 2, 45, 1),
    Sketcher.Constraint("Coincident", 45, 2, 46, 2),
    Sketcher.Constraint("Tangent", 46, 1, 47, 2),
    Sketcher.Constraint("Tangent", 47, 1, 48, 2),
    Sketcher.Constraint("Coincident", 48, 1, 49, 1),
    Sketcher.Constraint("Coincident", 49, 2, 44, 1),
    Sketcher.Constraint("Horizontal", 0),
    Sketcher.Constraint("Vertical", 2),
    Sketcher.Constraint("Horizontal", 4),
    Sketcher.Constraint("Vertical", 6),
    Sketcher.Constraint("Horizontal", 18),
    Sketcher.Constraint("Vertical", 23),
    Sketcher.Constraint("Vertical", 34),
    Sketcher.Constraint("Horizontal", 43),
    Sketcher.Constraint("Coincident", 10, 3, 8, 3),
    Sketcher.Constraint("Coincident", 26, 3, 24, 3),
    Sketcher.Constraint("Coincident", 48, 3, 46, 3),
    Sketcher.Constraint("Equal", 1, 3),
    Sketcher.Constraint("Equal", 3, 5),
    Sketcher.Constraint("Equal", 5, 7),
    Sketcher.Constraint("Equal", 10, 24),
    Sketcher.Constraint("Perpendicular", 11, 12),
    Sketcher.Constraint("Perpendicular", 12, 13),
    Sketcher.Constraint("Perpendicular", 13, 14),
    Sketcher.Constraint("Perpendicular", 14, 15),
    Sketcher.Constraint("Perpendicular", 15, 16),
    Sketcher.Constraint("Perpendicular", 16, 17),
    Sketcher.Constraint("Parallel", 17, 19),
    Sketcher.Constraint("Perpendicular", 19, 20),
    Sketcher.Constraint("Perpendicular", 20, 21),
    Sketcher.Constraint("Perpendicular", 21, 22),
    Sketcher.Constraint("Parallel", 22, 27),
    Sketcher.Constraint("Perpendicular", 27, 28),
    Sketcher.Constraint("Perpendicular", 28, 29),
    Sketcher.Constraint("Perpendicular", 29, 30),
    Sketcher.Constraint("Perpendicular", 30, 31),
    Sketcher.Constraint("Perpendicular", 31, 32),
    Sketcher.Constraint("Perpendicular", 32, 33),
    Sketcher.Constraint("Perpendicular", 33, 35),
    Sketcher.Constraint("Perpendicular", 35, 36),
    Sketcher.Constraint("Parallel", 36, 38),
    Sketcher.Constraint("Parallel", 38, 39),
    Sketcher.Constraint("Perpendicular", 39, 40),
    Sketcher.Constraint("Perpendicular", 40, 41),
    Sketcher.Constraint("Perpendicular", 41, 42),
    Sketcher.Constraint("Perpendicular", 42, 44),
    Sketcher.Constraint("Perpendicular", 44, 45),
    Sketcher.Constraint("Parallel", 45, 49),
    Sketcher.Constraint("Horizontal", 10, 3, 24, 3),
    Sketcher.Constraint("Horizontal", 14, 2, 16, 2),
    Sketcher.Constraint("Horizontal", 12, 2, 22, 2),
    Sketcher.Constraint("Horizontal", 9, 1, 24, 1),
    Sketcher.Constraint("Horizontal", 8, 1, 25, 1),
    Sketcher.Constraint("Horizontal", 13, 2, 26, 1),
    Sketcher.Constraint("Horizontal", 22, 2, 27, 2),
    Sketcher.Constraint("Horizontal", 11, 2, 28, 2),
    Sketcher.Constraint("Horizontal", 10, 1, 29, 2),
    Sketcher.Constraint("Horizontal", 21, 2, 30, 2),
    Sketcher.Constraint("Horizontal", 20, 2, 31, 2),
    Sketcher.Constraint("Horizontal", 19, 2, 32, 2),
    Sketcher.Constraint("Horizontal", 23, 2, 33, 2),
    Sketcher.Constraint("Horizontal", 33, 2, 38, 2),
    Sketcher.Constraint("Horizontal", 39, 2, 41, 2),
    Sketcher.Constraint("Horizontal", 38, 2, 44, 2),
    Sketcher.Constraint("Horizontal", 37, 1, 45, 2),
    Sketcher.Constraint("Horizontal", 36, 2, 48, 1),
    Sketcher.Constraint("Horizontal", 35, 2, 49, 2),
    Sketcher.Constraint("Vertical", 11, 2, 18, 2),
    Sketcher.Constraint("Vertical", 19, 2, 21, 2),
    Sketcher.Constraint("Vertical", 17, 2, 28, 2),
    Sketcher.Constraint("Vertical", 18, 2, 35, 2),
    Sketcher.Constraint("Vertical", 10, 1, 36, 2),
    Sketcher.Constraint("Vertical", 13, 2, 37, 1),
    Sketcher.Constraint("Vertical", 12, 2, 38, 2),
    Sketcher.Constraint("Vertical", 16, 2, 39, 2),
    Sketcher.Constraint("Vertical", 15, 2, 40, 2),
    Sketcher.Constraint("Vertical", 35, 2, 42, 2),
    Sketcher.Constraint("Vertical", 27, 2, 44, 2),
    Sketcher.Constraint("Equal", 4, 2),
    Sketcher.Constraint("Equal", 43, 23),
    Sketcher.Constraint("Equal", 11, 13),
    Sketcher.Constraint("Equal", 17, 19),
    Sketcher.Constraint("Radius", 1, 3.0),
    Sketcher.Constraint("DistanceX", 0, 1, 0, 2, 12.0),
    Sketcher.Constraint("Distance", 12, 2.5),
    Sketcher.Constraint("Distance", 14, 0.5),
    Sketcher.Constraint("Distance", 15, 3.5),
    Sketcher.Constraint("Distance", 11, 6.75),
    Sketcher.Constraint("Radius", 37, 1.28129),
    Sketcher.Constraint("Radius", 46, 1.28008),
    Sketcher.Constraint("Radius", 8, 1.281163),
    Sketcher.Constraint("DistanceX", 8, 1, -1, 1, 6.697099),
    Sketcher.Constraint("DistanceX", -1, 1, 1, 3, 6.000529),
    Sketcher.Constraint("DistanceY", 1, 3, -1, 1, 6.00055),
    Sketcher.Constraint("DistanceY", 8, 1, -1, 1, 6.737952),
    Sketcher.Constraint("DistanceX", 11, 2, -1, 1, 2.120792),
    Sketcher.Constraint("DistanceY", 15, 2, -1, 1, 3.182531),
    Sketcher.Constraint("DistanceX", 20, 2, -1, 1, 3.181452),
    Sketcher.Constraint("DistanceX", -1, 1, 24, 1, 6.73793),
    Sketcher.Constraint("DistanceX", -1, 1, 31, 2, 3.182509),
    Sketcher.Constraint("DistanceY", -1, 1, 40, 2, 3.18143),
    Sketcher.Constraint("DistanceX", -1, 1, 46, 1, 6.64471),
    Sketcher.Constraint("DistanceY", -1, 1, 47, 1, 6.643631),
])
pad9 = body9.newObject("PartDesign::Pad", "Pad008")
pad9.Profile = sketch9
pad9.Length = 0.5

doc.recompute()
